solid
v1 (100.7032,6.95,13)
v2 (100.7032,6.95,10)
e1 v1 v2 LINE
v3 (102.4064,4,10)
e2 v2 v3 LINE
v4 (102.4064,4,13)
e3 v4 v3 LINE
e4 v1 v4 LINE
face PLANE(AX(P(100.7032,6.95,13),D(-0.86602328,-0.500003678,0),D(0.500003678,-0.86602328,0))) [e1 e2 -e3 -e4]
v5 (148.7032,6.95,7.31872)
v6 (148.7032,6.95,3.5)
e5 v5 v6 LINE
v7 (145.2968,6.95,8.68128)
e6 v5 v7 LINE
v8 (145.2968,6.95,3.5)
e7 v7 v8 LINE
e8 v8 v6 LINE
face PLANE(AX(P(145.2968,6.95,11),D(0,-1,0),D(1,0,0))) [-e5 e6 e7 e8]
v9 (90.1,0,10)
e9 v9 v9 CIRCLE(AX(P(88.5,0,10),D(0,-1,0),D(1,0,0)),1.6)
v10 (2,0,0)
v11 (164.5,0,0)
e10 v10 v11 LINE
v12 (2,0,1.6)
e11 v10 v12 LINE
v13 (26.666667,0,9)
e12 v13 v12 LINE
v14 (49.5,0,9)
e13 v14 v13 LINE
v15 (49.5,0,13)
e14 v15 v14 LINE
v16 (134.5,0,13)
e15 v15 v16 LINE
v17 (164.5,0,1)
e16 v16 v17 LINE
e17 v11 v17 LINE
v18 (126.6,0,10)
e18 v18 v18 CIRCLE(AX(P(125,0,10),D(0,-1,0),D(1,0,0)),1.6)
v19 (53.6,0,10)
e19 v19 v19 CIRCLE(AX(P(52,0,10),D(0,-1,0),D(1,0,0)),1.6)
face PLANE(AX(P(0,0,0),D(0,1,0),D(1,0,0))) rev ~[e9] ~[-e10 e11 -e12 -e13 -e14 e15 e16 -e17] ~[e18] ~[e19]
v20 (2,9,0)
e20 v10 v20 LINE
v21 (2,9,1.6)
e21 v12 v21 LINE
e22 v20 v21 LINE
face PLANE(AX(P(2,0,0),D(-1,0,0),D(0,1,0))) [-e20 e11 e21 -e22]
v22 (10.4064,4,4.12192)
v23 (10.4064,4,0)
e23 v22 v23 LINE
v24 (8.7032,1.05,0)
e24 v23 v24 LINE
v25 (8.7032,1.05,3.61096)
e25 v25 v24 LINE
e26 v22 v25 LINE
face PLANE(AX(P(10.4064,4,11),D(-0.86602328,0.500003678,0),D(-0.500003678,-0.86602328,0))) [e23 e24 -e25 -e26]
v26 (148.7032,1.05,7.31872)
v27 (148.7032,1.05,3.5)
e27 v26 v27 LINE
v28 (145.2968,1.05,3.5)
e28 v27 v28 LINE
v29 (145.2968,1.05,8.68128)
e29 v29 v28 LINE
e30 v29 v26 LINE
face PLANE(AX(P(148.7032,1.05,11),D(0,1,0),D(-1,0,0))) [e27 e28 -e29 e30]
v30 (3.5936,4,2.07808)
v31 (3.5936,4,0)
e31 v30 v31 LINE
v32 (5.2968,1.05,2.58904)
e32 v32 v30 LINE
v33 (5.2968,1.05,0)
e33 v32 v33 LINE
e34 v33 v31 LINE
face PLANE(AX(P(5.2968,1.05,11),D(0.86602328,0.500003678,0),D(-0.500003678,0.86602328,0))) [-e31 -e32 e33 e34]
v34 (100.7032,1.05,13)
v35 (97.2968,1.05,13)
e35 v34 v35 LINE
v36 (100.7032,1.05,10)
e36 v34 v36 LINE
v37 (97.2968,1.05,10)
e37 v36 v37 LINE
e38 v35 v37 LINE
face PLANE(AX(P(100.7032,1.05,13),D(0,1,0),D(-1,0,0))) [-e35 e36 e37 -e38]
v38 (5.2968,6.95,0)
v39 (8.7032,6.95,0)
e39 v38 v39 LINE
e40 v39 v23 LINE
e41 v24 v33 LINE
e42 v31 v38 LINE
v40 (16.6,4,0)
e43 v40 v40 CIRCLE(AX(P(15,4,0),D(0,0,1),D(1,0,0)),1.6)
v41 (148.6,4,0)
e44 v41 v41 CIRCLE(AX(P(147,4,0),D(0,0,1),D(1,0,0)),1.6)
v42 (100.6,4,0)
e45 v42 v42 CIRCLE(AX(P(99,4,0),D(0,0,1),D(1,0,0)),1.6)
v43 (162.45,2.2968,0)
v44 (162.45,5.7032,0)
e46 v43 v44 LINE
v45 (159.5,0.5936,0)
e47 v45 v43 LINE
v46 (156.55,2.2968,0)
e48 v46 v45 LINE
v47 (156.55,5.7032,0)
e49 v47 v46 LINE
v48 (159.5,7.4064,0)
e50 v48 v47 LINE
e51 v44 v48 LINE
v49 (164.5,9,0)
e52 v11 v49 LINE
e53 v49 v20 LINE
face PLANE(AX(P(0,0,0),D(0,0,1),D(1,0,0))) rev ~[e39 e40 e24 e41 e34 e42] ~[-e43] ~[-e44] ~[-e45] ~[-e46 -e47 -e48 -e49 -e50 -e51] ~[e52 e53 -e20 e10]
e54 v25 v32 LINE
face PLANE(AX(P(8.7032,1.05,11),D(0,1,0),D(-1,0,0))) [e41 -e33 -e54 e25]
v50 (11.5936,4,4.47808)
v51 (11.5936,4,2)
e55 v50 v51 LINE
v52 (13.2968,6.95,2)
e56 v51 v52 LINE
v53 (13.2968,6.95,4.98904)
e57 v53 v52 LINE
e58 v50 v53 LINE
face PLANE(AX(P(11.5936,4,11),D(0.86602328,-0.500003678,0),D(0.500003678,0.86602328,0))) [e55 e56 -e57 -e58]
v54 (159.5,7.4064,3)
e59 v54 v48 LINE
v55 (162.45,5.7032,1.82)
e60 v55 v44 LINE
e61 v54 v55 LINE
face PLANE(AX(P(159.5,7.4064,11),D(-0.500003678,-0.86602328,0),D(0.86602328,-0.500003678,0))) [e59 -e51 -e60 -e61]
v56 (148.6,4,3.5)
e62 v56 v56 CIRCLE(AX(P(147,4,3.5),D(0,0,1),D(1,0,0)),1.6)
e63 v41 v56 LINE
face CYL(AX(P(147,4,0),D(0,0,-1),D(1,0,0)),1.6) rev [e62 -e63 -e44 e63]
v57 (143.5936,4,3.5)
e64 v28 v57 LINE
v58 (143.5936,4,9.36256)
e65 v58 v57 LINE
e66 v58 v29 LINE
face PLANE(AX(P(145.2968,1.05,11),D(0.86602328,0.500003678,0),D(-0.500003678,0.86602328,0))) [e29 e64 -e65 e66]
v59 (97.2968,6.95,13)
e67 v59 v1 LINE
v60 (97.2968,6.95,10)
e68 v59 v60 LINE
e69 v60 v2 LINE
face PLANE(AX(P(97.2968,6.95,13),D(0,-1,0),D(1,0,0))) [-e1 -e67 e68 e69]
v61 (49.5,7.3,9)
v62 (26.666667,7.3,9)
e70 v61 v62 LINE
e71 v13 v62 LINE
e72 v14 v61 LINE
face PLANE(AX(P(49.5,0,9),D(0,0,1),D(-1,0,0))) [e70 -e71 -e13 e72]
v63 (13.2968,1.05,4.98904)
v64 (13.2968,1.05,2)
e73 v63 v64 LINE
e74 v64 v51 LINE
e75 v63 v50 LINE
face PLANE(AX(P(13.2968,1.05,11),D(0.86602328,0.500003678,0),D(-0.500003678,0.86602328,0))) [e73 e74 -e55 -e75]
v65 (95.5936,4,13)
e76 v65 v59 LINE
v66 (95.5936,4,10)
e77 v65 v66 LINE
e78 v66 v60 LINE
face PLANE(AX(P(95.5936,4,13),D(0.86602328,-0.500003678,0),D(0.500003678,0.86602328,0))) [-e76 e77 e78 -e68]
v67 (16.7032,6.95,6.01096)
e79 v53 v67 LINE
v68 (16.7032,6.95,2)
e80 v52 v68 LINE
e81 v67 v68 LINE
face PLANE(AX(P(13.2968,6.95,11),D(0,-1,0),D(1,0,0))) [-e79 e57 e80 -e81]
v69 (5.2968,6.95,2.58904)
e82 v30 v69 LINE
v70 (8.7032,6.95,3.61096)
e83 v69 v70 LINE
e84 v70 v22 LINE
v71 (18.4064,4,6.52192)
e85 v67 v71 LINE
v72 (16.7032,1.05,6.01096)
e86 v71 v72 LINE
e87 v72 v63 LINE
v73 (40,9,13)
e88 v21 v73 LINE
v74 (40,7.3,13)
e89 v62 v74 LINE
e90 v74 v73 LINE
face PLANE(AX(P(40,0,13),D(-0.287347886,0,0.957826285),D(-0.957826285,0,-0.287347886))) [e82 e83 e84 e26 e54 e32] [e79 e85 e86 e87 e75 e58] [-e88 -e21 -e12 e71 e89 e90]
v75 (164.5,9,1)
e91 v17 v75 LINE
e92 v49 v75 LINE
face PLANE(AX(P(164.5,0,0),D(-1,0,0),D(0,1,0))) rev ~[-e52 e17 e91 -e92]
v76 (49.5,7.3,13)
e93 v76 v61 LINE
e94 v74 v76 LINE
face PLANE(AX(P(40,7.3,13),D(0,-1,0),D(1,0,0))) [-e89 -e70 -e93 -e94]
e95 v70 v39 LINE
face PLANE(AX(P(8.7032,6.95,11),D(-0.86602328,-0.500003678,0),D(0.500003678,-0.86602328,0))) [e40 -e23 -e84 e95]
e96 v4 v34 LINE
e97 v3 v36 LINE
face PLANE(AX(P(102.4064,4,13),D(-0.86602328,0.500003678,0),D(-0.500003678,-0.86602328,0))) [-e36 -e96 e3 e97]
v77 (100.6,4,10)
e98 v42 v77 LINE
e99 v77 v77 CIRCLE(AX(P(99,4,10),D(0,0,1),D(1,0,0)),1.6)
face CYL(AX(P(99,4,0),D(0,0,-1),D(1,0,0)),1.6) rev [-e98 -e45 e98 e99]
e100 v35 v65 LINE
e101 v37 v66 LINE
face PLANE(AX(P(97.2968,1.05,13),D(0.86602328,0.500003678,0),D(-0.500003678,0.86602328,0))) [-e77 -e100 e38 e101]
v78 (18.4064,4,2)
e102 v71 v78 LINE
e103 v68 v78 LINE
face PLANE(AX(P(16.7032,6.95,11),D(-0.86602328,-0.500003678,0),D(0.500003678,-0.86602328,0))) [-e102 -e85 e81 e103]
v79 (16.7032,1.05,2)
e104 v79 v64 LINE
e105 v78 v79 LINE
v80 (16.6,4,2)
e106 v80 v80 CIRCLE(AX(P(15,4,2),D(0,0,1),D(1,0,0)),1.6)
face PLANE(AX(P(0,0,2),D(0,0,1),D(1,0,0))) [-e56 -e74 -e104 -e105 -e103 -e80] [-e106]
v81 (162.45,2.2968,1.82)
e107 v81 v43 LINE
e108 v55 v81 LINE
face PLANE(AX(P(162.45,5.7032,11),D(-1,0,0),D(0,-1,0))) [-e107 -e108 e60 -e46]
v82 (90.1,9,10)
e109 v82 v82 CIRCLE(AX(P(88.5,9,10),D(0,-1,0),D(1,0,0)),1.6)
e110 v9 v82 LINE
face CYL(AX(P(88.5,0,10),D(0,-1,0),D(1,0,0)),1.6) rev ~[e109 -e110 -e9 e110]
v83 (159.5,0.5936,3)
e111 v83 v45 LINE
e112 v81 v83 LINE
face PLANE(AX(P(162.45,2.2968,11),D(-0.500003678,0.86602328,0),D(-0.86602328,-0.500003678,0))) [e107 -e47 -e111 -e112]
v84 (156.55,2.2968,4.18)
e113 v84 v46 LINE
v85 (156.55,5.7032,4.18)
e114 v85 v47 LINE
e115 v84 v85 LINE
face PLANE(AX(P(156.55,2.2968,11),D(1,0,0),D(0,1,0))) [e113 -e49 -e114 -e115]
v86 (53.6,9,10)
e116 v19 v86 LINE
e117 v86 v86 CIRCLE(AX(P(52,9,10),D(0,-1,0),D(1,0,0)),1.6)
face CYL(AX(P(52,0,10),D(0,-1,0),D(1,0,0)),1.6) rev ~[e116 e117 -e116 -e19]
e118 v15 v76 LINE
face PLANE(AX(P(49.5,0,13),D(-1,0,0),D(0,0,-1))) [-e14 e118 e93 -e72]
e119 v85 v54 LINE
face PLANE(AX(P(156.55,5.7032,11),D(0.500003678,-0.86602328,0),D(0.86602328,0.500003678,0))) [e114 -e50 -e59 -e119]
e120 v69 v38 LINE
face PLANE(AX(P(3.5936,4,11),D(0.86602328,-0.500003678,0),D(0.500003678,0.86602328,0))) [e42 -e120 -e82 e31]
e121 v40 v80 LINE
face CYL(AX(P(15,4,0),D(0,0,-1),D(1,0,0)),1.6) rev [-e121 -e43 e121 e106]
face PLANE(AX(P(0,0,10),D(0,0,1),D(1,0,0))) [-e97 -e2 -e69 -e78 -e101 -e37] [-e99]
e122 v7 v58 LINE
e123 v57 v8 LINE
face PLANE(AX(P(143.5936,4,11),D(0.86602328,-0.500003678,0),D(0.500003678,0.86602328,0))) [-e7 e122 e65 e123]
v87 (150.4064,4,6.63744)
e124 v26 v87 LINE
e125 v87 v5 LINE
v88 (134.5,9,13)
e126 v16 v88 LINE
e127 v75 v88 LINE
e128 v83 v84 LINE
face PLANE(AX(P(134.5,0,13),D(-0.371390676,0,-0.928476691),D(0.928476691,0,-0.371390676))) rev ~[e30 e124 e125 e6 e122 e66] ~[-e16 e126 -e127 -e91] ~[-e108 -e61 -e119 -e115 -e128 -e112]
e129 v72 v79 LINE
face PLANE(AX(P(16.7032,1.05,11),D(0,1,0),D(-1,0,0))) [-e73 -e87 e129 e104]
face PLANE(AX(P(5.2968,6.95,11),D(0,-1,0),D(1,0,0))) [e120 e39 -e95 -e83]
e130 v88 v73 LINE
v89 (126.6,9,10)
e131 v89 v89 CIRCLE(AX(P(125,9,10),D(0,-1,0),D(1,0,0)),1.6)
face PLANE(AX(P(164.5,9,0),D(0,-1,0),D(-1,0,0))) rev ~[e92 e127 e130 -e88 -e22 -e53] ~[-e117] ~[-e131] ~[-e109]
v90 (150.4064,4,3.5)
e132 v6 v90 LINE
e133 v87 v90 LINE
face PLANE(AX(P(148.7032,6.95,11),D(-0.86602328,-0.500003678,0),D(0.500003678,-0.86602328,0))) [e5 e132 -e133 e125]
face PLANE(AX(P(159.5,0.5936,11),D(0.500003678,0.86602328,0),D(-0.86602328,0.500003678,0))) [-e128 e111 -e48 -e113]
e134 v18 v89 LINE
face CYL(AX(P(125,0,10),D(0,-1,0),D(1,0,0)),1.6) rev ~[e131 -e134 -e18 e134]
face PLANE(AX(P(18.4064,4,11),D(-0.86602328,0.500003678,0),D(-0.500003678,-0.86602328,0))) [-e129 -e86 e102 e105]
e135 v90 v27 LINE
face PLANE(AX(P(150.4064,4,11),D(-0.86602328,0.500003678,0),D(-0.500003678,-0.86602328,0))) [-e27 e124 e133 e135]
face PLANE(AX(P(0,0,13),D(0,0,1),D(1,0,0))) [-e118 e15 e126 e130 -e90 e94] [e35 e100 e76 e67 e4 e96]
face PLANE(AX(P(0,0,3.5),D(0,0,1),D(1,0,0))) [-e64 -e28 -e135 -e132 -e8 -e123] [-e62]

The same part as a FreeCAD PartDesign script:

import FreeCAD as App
import Part
import Sketcher
Q = App.Units.Quantity


def add_polygon(sketch, points):
    """Adds a closed chain of lines whose ends are joined by coincident constraints."""
    first, n = sketch.GeometryCount, len(points)
    for a, b in zip(points, points[1:] + points[:1]):
        sketch.addGeometry(Part.LineSegment(App.Vector(*a, 0), App.Vector(*b, 0)), False)
    for i in range(n):
        sketch.addConstraint(Sketcher.Constraint("Coincident", first + i, 2, first + (i + 1) % n, 1))

doc = App.newDocument("Part")
body = doc.addObject("PartDesign::Body", "Body")

sketch1 = body.newObject("Sketcher::SketchObject", "Sketch")
sketch1.AttachmentSupport = (doc.getObject("XY_Plane"), [""])
sketch1.MapMode = "FlatFace"
add_polygon(sketch1, [(0, 9), (0, 0), (164.5, 0), (164.5, 9)])
sketch1.addGeometry(Part.Circle(App.Vector(7, 4, 0), App.Vector(0, 0, 1), 1.6), False)
sketch1.addGeometry(Part.Circle(App.Vector(15, 4, 0), App.Vector(0, 0, 1), 1.6), False)
sketch1.addGeometry(Part.Circle(App.Vector(99, 4, 0), App.Vector(0, 0, 1), 1.6), False)
sketch1.addGeometry(Part.Circle(App.Vector(147, 4, 0), App.Vector(0, 0, 1), 1.6), False)
sketch1.addGeometry(Part.Circle(App.Vector(159.5, 4, 0), App.Vector(0, 0, 1), 1.6), False)
sketch1.addConstraint([
    Sketcher.Constraint("Vertical", 0),
    Sketcher.Constraint("Horizontal", 1),
    Sketcher.Constraint("Vertical", 2),
    Sketcher.Constraint("Horizontal", 3),
    Sketcher.Constraint("Coincident", 0, 2, -1, 1),
    Sketcher.Constraint("Equal", 4, 5),
    Sketcher.Constraint("Equal", 5, 6),
    Sketcher.Constraint("Equal", 6, 7),
    Sketcher.Constraint("Equal", 7, 8),
    Sketcher.Constraint("Horizontal", 4, 3, 5, 3),
    Sketcher.Constraint("Horizontal", 5, 3, 6, 3),
    Sketcher.Constraint("Horizontal", 6, 3, 7, 3),
    Sketcher.Constraint("Horizontal", 7, 3, 8, 3),
    Sketcher.Constraint("Diameter", 4, Q("3.2 mm")),
    Sketcher.Constraint("DistanceY", 0, 2, 0, 1, Q("9 mm")),
    Sketcher.Constraint("DistanceY", -1, 1, 4, 3, Q("4 mm")),
    Sketcher.Constraint("DistanceX", -1, 1, 5, 3, Q("15 mm")),
    Sketcher.Constraint("DistanceX", 4, 3, 5, 3, Q("8 mm")),
    Sketcher.Constraint("DistanceX", 6, 3, 7, 3, Q("48 mm")),
    Sketcher.Constraint("DistanceX", 8, 3, 1, 2, Q("5 mm")),
    Sketcher.Constraint("DistanceX", 7, 3, 8, 3, Q("12.5 mm")),
    Sketcher.Constraint("DistanceX", 1, 1, 1, 2, Q("164.5 mm")),
])
pad1 = body.newObject("PartDesign::Pad", "Pad")
pad1.Profile = sketch1
pad1.Length = 13

sketch2 = body.newObject("Sketcher::SketchObject", "Sketch001")
sketch2.AttachmentSupport = (doc.getObject("XZ_Plane"), [""])
sketch2.MapMode = "FlatFace"
sketch2.addGeometry([
    Part.Circle(App.Vector(52, 10, 0), App.Vector(0, 0, 1), 1.6),
    Part.Circle(App.Vector(125, 10, 0), App.Vector(0, 0, 1), 1.6),
    Part.Circle(App.Vector(88.5, 10, 0), App.Vector(0, 0, 1), 1.6),
], False)
sketch2.addConstraint([
    Sketcher.Constraint("Equal", 0, 1),
    Sketcher.Constraint("Equal", 1, 2),
    Sketcher.Constraint("Horizontal", 0, 3, 1, 3),
    Sketcher.Constraint("Horizontal", 1, 3, 2, 3),
    Sketcher.Constraint("Diameter", 0, Q("3.2 mm")),
    Sketcher.Constraint("DistanceX", -1, 1, 0, 3, Q("52 mm")),
    Sketcher.Constraint("DistanceY", -1, 1, 0, 3, Q("10 mm")),
    Sketcher.Constraint("DistanceX", 0, 3, 1, 3, Q("73 mm")),
    Sketcher.Constraint("DistanceX", 0, 3, 2, 3, Q("36.5 mm")),
])
pocket1 = body.newObject("PartDesign::Pocket", "Pocket")
pocket1.Profile = sketch2
pocket1.Type = "UpToFirst"

sketch3 = body.newObject("Sketcher::SketchObject", "Sketch002")
sketch3.AttachmentSupport = (doc.getObject("XZ_Plane"), [""])
sketch3.MapMode = "FlatFace"
add_polygon(sketch3, [(40, 13), (0, 13), (0, 1)])
sketch3.addConstraint([
    Sketcher.Constraint("Horizontal", 0),
    Sketcher.Constraint("Vertical", 1),
    Sketcher.Constraint("PointOnObject", 0, 2, -2),
    Sketcher.Constraint("DistanceX", 0, 2, 0, 1, Q("40 mm")),
    Sketcher.Constraint("DistanceY", 1, 2, 1, 1, Q("12 mm")),
    Sketcher.Constraint("DistanceY", -1, 1, 0, 2, Q("13 mm")),
])
pocket2 = body.newObject("PartDesign::Pocket", "Pocket001")
pocket2.Profile = sketch3
pocket2.Type = "UpToFirst"

sketch4 = body.newObject("Sketcher::SketchObject", "Sketch003")
sketch4.AttachmentSupport = (doc.getObject("XZ_Plane"), [""])
sketch4.MapMode = "FlatFace"
add_polygon(sketch4, [(134, 13), (164, 1), (164, 13)])
sketch4.addConstraint([
    Sketcher.Constraint("Vertical", 1),
    Sketcher.Constraint("Horizontal", 2),
    Sketcher.Constraint("DistanceX", 2, 2, 2, 1, Q("30 mm")),
    Sketcher.Constraint("DistanceY", 1, 1, 1, 2, Q("12 mm")),
    Sketcher.Constraint("DistanceY", -1, 1, 0, 2, Q("1 mm")),
    Sketcher.Constraint("DistanceX", -1, 1, 0, 2, Q("164.5 mm")),
])
pocket3 = body.newObject("PartDesign::Pocket", "Pocket002")
pocket3.Profile = sketch4
pocket3.Type = "UpToFirst"

sketch5 = body.newObject("Sketcher::SketchObject", "Sketch004")
sketch5.AttachmentSupport = (doc.getObject("XY_Plane"), [""])
sketch5.MapMode = "FlatFace"
sketch5.AttachmentOffset = App.Placement(App.Vector(0, 0, 13), App.Rotation())
add_polygon(sketch5, [(97.3, 7), (95.6, 4), (97.3, 1.1), (100.7, 1.1), (102.4, 4), (100.7, 7)])
sketch5.addGeometry(Part.Circle(App.Vector(99, 4, 0), App.Vector(0, 0, 1), 1.6), False)
sketch5.addConstraint([
    Sketcher.Constraint("Horizontal", 2),
    Sketcher.Constraint("Horizontal", 5),
    Sketcher.Constraint("Parallel", 0, 3),
    Sketcher.Constraint("Parallel", 1, 4),
    Sketcher.Constraint("Horizontal", 6, 3, 0, 2),
    Sketcher.Constraint("Horizontal", 0, 2, 3, 2),
    Sketcher.Constraint("Vertical", 2, 2, 4, 2),
    Sketcher.Constraint("Vertical", 1, 2, 5, 2),
    Sketcher.Constraint("Diameter", 6, Q("3.2 mm")),
    Sketcher.Constraint("DistanceY", 2, 2, 4, 2, Q("5.9 mm")),
    Sketcher.Constraint("Angle", 0, Q("-120.0002 deg")),
    Sketcher.Constraint("DistanceX", -1, 1, 6, 3, Q("99 mm")),
    Sketcher.Constraint("DistanceY", -1, 1, 6, 3, Q("4 mm")),
    Sketcher.Constraint("DistanceX", 2, 1, 2, 2, Q("3.4064 mm")),
    Sketcher.Constraint("DistanceX", -1, 1, 0, 2, Q("95.5936 mm")),
])
pocket4 = body.newObject("PartDesign::Pocket", "Pocket003")
pocket4.Profile = sketch5
pocket4.Length = 3

sketch6 = body.newObject("Sketcher::SketchObject", "Sketch005")
sketch6.AttachmentSupport = (doc.getObject("XY_Plane"), [""])
sketch6.MapMode = "FlatFace"
sketch6.AttachmentOffset = App.Placement(App.Vector(0, 0, 11), App.Rotation())
add_polygon(sketch6, [(148.7, 1.1), (150.4, 4), (148.7, 7), (145.3, 7), (143.6, 4), (145.3, 1.1)])
sketch6.addGeometry(Part.Circle(App.Vector(147, 4, 0), App.Vector(0, 0, 1), 1.6), False)
sketch6.addConstraint([
    Sketcher.Constraint("Horizontal", 2),
    Sketcher.Constraint("Horizontal", 5),
    Sketcher.Constraint("Parallel", 0, 3),
    Sketcher.Constraint("Parallel", 1, 4),
    Sketcher.Constraint("Horizontal", 6, 3, 0, 2),
    Sketcher.Constraint("Horizontal", 0, 2, 3, 2),
    Sketcher.Constraint("Vertical", 2, 2, 4, 2),
    Sketcher.Constraint("Vertical", 1, 2, 5, 2),
    Sketcher.Constraint("Diameter", 6, Q("3.2 mm")),
    Sketcher.Constraint("DistanceY", 4, 2, 2, 2, Q("5.9 mm")),
    Sketcher.Constraint("Angle", 0, Q("59.9998 deg")),
    Sketcher.Constraint("DistanceX", -1, 1, 6, 3, Q("147 mm")),
    Sketcher.Constraint("DistanceY", -1, 1, 6, 3, Q("4 mm")),
    Sketcher.Constraint("DistanceX", 2, 2, 2, 1, Q("3.4064 mm")),
    Sketcher.Constraint("DistanceX", -1, 1, 0, 2, Q("150.4064 mm")),
])
pocket5 = body.newObject("PartDesign::Pocket", "Pocket004")
pocket5.Profile = sketch6
pocket5.Length = 7.5

sketch7 = body.newObject("Sketcher::SketchObject", "Sketch006")
sketch7.AttachmentSupport = (doc.getObject("XY_Plane"), [""])
sketch7.MapMode = "FlatFace"
sketch7.AttachmentOffset = App.Placement(App.Vector(0, 0, 11), App.Rotation())
add_polygon(sketch7, [(162.4, 2.3), (162.4, 5.7), (159.5, 7.4), (156.6, 5.7), (156.6, 2.3), (159.5, 0.6)])
sketch7.addConstraint([
    Sketcher.Constraint("Vertical", 0),
    Sketcher.Constraint("Vertical", 3),
    Sketcher.Constraint("Parallel", 1, 4),
    Sketcher.Constraint("Parallel", 2, 5),
    Sketcher.Constraint("Horizontal", 0, 2, 2, 2),
    Sketcher.Constraint("Horizontal", 3, 2, 5, 2),
    Sketcher.Constraint("Vertical", 1, 2, 4, 2),
    Sketcher.Constraint("DistanceX", 2, 2, 0, 2, Q("5.9 mm")),
    Sketcher.Constraint("Angle", 1, Q("149.9998 deg")),
    Sketcher.Constraint("DistanceX", -1, 1, 1, 2, Q("159.5 mm")),
    Sketcher.Constraint("DistanceY", 0, 1, 0, 2, Q("3.4064 mm")),
    Sketcher.Constraint("DistanceY", -1, 1, 0, 2, Q("5.7032 mm")),
])
pocket6 = body.newObject("PartDesign::Pocket", "Pocket005")
pocket6.Profile = sketch7
pocket6.Length = 11

sketch8 = body.newObject("Sketcher::SketchObject", "Sketch007")
sketch8.AttachmentSupport = (doc.getObject("XY_Plane"), [""])
sketch8.MapMode = "FlatFace"
sketch8.AttachmentOffset = App.Placement(App.Vector(0, 0, 11), App.Rotation())
add_polygon(sketch8, [(8.7, 1.1), (10.4, 4), (8.7, 7), (5.3, 7), (3.6, 4), (5.3, 1.1)])
sketch8.addGeometry(Part.Circle(App.Vector(7, 4, 0), App.Vector(0, 0, 1), 1.6), False)
sketch8.addConstraint([
    Sketcher.Constraint("Horizontal", 2),
    Sketcher.Constraint("Horizontal", 5),
    Sketcher.Constraint("Parallel", 0, 3),
    Sketcher.Constraint("Parallel", 1, 4),
    Sketcher.Constraint("Horizontal", 6, 3, 0, 2),
    Sketcher.Constraint("Horizontal", 0, 2, 3, 2),
    Sketcher.Constraint("Vertical", 2, 2, 4, 2),
    Sketcher.Constraint("Vertical", 1, 2, 5, 2),
    Sketcher.Constraint("Diameter", 6, Q("3.2 mm")),
    Sketcher.Constraint("DistanceY", 4, 2, 2, 2, Q("5.9 mm")),
    Sketcher.Constraint("Angle", 0, Q("59.9998 deg")),
    Sketcher.Constraint("DistanceX", -1, 1, 6, 3, Q("7 mm")),
    Sketcher.Constraint("DistanceY", -1, 1, 6, 3, Q("4 mm")),
    Sketcher.Constraint("DistanceX", 2, 2, 2, 1, Q("3.4064 mm")),
    Sketcher.Constraint("DistanceX", -1, 1, 0, 2, Q("10.4064 mm")),
])
pocket7 = body.newObject("PartDesign::Pocket", "Pocket006")
pocket7.Profile = sketch8
pocket7.Type = "ThroughAll"

sketch9 = body.newObject("Sketcher::SketchObject", "Sketch008")
sketch9.AttachmentSupport = (doc.getObject("XY_Plane"), [""])
sketch9.MapMode = "FlatFace"
sketch9.AttachmentOffset = App.Placement(App.Vector(0, 0, 11), App.Rotation())
add_polygon(sketch9, [(16.7, 1.1), (18.4, 4), (16.7, 7), (13.3, 7), (11.6, 4), (13.3, 1.1)])
sketch9.addGeometry(Part.Circle(App.Vector(15, 4, 0), App.Vector(0, 0, 1), 1.6), False)
sketch9.addConstraint([
    Sketcher.Constraint("Horizontal", 2),
    Sketcher.Constraint("Horizontal", 5),
    Sketcher.Constraint("Parallel", 0, 3),
    Sketcher.Constraint("Parallel", 1, 4),
    Sketcher.Constraint("Horizontal", 6, 3, 0, 2),
    Sketcher.Constraint("Horizontal", 0, 2, 3, 2),
    Sketcher.Constraint("Vertical", 2, 2, 4, 2),
    Sketcher.Constraint("Vertical", 1, 2, 5, 2),
    Sketcher.Constraint("Diameter", 6, Q("3.2 mm")),
    Sketcher.Constraint("DistanceY", 4, 2, 2, 2, Q("5.9 mm")),
    Sketcher.Constraint("Angle", 0, Q("59.9998 deg")),
    Sketcher.Constraint("DistanceX", -1, 1, 6, 3, Q("15 mm")),
    Sketcher.Constraint("DistanceY", -1, 1, 6, 3, Q("4 mm")),
    Sketcher.Constraint("DistanceX", 2, 2, 2, 1, Q("3.4064 mm")),
    Sketcher.Constraint("DistanceX", -1, 1, 0, 2, Q("18.4064 mm")),
])
pocket8 = body.newObject("PartDesign::Pocket", "Pocket007")
pocket8.Profile = sketch9
pocket8.Length = 9

sketch10 = body.newObject("Sketcher::SketchObject", "Sketch009")
sketch10.AttachmentSupport = (doc.getObject("XY_Plane"), [""])
sketch10.MapMode = "FlatFace"
add_polygon(sketch10, [(0, 9), (2, 9), (2, 0), (0, 0)])
sketch10.addConstraint([
    Sketcher.Constraint("Horizontal", 0),
    Sketcher.Constraint("Vertical", 1),
    Sketcher.Constraint("Horizontal", 2),
    Sketcher.Constraint("Vertical", 3),
    Sketcher.Constraint("Coincident", 2, 2, -1, 1),
    Sketcher.Constraint("DistanceX", 0, 1, 0, 2, Q("2 mm")),
    Sketcher.Constraint("DistanceY", 1, 2, 1, 1, Q("9 mm")),
])
pocket9 = body.newObject("PartDesign::Pocket", "Pocket008")
pocket9.Profile = sketch10
pocket9.Type = "UpToFirst"
pocket9.Reversed = True

sketch11 = body.newObject("Sketcher::SketchObject", "Sketch010")
sketch11.AttachmentSupport = (doc.getObject("XZ_Plane"), [""])
sketch11.MapMode = "FlatFace"
add_polygon(sketch11, [(49.5, 9), (49.5, 13), (24.5, 13), (24.5, 9)])
sketch11.addConstraint([
    Sketcher.Constraint("Vertical", 0),
    Sketcher.Constraint("Horizontal", 1),
    Sketcher.Constraint("Vertical", 2),
    Sketcher.Constraint("Horizontal", 3),
    Sketcher.Constraint("DistanceX", 1, 2, 1, 1, Q("25 mm")),
    Sketcher.Constraint("DistanceY", 0, 1, 0, 2, Q("4 mm")),
    Sketcher.Constraint("DistanceY", -1, 1, 0, 2, Q("13 mm")),
    Sketcher.Constraint("DistanceX", -1, 1, 0, 2, Q("49.5 mm")),
])
pocket10 = body.newObject("PartDesign::Pocket", "Pocket009")
pocket10.Profile = sketch11
pocket10.Length = 7.3

doc.recompute()
